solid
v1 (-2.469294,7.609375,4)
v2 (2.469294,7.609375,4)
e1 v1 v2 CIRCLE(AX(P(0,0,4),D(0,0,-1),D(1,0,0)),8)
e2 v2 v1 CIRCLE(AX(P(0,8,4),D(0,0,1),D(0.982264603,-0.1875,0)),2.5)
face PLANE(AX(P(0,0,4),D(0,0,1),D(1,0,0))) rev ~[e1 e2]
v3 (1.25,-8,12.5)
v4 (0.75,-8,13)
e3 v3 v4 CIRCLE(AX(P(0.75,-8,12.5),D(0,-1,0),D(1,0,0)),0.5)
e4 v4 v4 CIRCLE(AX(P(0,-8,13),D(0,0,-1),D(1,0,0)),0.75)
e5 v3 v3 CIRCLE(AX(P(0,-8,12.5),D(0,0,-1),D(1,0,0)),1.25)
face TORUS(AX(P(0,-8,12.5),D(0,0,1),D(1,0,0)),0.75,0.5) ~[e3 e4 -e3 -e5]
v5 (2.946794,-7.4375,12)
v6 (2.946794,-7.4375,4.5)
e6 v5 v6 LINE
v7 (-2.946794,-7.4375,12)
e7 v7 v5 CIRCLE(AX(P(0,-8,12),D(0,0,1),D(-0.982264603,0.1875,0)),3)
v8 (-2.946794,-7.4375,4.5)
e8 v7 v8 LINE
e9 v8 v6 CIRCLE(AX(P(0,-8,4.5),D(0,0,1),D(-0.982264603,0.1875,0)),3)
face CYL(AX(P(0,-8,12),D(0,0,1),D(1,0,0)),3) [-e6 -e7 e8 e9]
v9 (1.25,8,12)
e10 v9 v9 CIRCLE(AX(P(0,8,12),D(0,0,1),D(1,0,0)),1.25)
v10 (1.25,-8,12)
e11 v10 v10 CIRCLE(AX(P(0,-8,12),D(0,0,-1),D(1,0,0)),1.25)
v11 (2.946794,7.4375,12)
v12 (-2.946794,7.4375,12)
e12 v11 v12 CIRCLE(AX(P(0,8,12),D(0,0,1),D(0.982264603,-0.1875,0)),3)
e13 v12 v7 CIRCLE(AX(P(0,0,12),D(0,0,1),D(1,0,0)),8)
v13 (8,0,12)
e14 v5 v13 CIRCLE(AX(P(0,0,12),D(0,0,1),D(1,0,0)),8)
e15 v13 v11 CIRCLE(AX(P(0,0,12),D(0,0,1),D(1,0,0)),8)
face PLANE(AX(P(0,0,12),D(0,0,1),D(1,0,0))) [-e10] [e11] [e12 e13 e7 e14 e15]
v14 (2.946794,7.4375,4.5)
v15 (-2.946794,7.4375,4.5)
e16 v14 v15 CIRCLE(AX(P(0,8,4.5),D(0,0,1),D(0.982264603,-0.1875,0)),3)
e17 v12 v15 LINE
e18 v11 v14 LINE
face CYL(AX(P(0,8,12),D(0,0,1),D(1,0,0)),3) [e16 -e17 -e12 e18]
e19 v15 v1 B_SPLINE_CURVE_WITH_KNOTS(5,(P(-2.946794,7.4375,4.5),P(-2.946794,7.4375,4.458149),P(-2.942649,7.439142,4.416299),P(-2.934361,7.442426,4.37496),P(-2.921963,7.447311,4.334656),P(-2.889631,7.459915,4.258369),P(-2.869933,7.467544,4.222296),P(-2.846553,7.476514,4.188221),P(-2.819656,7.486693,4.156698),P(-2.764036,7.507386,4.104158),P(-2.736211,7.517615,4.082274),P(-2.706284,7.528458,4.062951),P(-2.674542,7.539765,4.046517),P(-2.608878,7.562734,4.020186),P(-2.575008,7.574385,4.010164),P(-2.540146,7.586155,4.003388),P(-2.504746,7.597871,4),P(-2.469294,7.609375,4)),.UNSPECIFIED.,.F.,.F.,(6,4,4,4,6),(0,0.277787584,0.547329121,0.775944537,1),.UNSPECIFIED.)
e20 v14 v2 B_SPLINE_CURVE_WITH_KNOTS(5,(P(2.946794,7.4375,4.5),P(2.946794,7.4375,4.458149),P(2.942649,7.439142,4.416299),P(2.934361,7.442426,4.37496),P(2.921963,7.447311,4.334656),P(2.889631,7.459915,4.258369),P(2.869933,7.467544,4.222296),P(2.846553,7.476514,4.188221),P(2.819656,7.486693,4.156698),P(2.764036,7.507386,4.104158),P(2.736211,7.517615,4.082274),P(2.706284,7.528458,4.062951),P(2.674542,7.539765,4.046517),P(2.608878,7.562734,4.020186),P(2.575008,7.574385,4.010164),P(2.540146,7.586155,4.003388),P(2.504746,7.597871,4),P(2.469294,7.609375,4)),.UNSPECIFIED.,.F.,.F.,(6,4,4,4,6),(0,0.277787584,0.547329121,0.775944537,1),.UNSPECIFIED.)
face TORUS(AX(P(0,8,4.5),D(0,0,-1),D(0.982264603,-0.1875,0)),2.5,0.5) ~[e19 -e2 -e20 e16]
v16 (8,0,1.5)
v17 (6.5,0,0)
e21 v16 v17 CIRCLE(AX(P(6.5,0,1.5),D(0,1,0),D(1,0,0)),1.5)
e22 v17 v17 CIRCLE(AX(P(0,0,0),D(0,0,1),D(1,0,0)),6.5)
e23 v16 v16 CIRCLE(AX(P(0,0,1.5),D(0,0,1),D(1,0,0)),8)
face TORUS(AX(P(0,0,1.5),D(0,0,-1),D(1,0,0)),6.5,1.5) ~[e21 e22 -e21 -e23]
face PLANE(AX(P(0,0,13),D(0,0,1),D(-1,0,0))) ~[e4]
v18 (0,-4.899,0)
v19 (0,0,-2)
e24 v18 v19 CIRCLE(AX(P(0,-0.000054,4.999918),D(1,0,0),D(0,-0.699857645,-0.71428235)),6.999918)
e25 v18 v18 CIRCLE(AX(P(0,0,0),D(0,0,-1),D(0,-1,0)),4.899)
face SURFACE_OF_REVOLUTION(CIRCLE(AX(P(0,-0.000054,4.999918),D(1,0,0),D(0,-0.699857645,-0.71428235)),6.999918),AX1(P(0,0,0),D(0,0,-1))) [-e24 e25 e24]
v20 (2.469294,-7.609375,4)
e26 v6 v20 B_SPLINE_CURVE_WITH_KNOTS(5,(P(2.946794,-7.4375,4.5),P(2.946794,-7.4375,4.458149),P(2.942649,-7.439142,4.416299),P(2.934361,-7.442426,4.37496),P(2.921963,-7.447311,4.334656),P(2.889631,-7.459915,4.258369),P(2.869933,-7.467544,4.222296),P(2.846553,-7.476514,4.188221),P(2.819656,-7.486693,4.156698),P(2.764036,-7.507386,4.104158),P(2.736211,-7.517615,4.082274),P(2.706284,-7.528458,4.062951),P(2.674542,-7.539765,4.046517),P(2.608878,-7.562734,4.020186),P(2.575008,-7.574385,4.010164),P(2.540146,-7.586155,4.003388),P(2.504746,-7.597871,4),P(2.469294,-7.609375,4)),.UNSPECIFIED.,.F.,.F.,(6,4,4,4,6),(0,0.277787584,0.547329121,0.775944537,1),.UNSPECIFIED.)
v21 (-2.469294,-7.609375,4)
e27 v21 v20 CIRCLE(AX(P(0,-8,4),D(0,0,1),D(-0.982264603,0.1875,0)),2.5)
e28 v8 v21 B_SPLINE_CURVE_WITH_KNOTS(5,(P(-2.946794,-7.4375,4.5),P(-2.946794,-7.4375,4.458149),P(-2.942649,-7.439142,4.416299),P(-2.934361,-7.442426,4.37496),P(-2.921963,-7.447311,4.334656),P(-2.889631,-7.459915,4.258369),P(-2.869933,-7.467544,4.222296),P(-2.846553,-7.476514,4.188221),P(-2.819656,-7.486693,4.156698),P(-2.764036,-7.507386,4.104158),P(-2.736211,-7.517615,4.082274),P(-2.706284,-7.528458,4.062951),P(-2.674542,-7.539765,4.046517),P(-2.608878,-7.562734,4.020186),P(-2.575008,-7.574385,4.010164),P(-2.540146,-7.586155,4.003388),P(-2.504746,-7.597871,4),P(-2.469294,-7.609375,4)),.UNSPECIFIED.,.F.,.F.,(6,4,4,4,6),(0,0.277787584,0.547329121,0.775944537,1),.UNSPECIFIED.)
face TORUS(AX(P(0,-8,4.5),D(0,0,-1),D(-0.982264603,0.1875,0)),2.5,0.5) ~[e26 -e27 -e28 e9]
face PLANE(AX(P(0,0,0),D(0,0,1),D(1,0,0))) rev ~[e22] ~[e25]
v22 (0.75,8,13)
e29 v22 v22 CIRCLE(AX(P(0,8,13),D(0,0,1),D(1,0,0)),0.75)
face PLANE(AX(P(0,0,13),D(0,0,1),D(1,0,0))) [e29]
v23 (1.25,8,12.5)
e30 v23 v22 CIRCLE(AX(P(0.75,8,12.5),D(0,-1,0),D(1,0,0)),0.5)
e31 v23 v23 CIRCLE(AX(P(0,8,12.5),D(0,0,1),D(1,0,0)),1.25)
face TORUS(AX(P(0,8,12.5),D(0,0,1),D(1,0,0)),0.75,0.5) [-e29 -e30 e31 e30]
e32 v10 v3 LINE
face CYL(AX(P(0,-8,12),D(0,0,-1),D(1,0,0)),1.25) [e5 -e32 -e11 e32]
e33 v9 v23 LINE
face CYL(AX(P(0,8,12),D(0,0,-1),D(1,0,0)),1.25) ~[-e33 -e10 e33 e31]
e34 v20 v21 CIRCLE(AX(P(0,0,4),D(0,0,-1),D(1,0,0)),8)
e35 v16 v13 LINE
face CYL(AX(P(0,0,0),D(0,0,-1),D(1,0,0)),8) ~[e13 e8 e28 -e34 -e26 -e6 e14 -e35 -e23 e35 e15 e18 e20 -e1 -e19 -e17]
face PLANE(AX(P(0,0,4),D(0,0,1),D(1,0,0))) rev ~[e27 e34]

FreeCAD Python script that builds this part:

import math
import FreeCAD as App
import Part
import Sketcher
from FreeCAD import Vector


def edges_at(feature, points):
    """Names of the edges that pass closest to the given points."""
    edges = feature.Shape.Edges
    near = lambda p: min(range(len(edges)), key=lambda i: edges[i].distToShape(Part.Vertex(*p))[0])
    return sorted({f"Edge{near(p) + 1}" for p in points})

doc = App.newDocument("Part")
params = doc.addObject("Spreadsheet::Sheet", "Params")
for row, (alias, value) in enumerate([
    ("sketch1_diameter", "16 mm"),
    ("pad1_length", "12 mm"),
    ("sketch2_diameter", "6 mm"),
    ("pad2_length", "8 mm"),
    ("sketch3_height", "2 mm"),
    ("sketch3_radius", "7 mm"),
    ("revolution_angle", "360 deg"),
    ("fillet_radius", "0.5 mm"),
    ("fillet2_radius", "1.5 mm"),
    ("sketch4_diameter", "2.5 mm"),
    ("pad3_length", "1 mm"),
    ("fillet3_radius", "0.5 mm"),
], start=1):
    params.set(f"A{row}", alias)
    params.set(f"B{row}", "=" + value)
    params.setAlias(f"B{row}", alias)

body = doc.addObject("PartDesign::Body", "Body")

# Sketch on XY plane
sketch1 = body.newObject("Sketcher::SketchObject", "Sketch")
sketch1.AttachmentSupport = (doc.getObject("XY_Plane"), [""])
sketch1.MapMode = "FlatFace"
sketch1.addGeometry(Part.Circle(Vector(0, 0, 0), Vector(0, 0, 1), 8), False)
sketch1.addConstraint(Sketcher.Constraint("Coincident", 0, 3, -1, 1))
sketch1.addConstraint(Sketcher.Constraint("Diameter", 0, 16.0))
sketch1.setExpression("Constraints[1]", "Params.sketch1_diameter")
pad1 = body.newObject("PartDesign::Pad", "Pad")
pad1.Profile = sketch1
pad1.setExpression("Length", "Params.pad1_length")

# Sketch on XY plane
sketch2 = body.newObject("Sketcher::SketchObject", "Sketch001")
sketch2.AttachmentSupport = (doc.getObject("XY_Plane"), [""])
sketch2.MapMode = "FlatFace"
sketch2.AttachmentOffset = App.Placement(Vector(0, 0, 12), App.Rotation())
sketch2.addGeometry(Part.Circle(Vector(0, 8, 0), Vector(0, 0, 1), 3), False)
sketch2.addGeometry(Part.Circle(Vector(0, -8, 0), Vector(0, 0, 1), 3), False)
sketch2.addConstraint(Sketcher.Constraint("Equal", 0, 1))
sketch2.addConstraint(Sketcher.Constraint("Symmetric", 0, 3, 1, 3, -1, 1))
sketch2.addConstraint(Sketcher.Constraint("PointOnObject", 0, 3, -2))
sketch2.addConstraint(Sketcher.Constraint("Diameter", 0, 6.0))
sketch2.addConstraint(Sketcher.Constraint("DistanceY", -1, 1, 0, 3, 8.0))
sketch2.setExpression("Constraints[3]", "Params.sketch2_diameter")
pad2 = body.newObject("PartDesign::Pad", "Pad001")
pad2.Profile = sketch2
pad2.setExpression("Length", "Params.pad2_length")
pad2.Reversed = True

# Sketch on YZ plane
sketch3 = body.newObject("Sketcher::SketchObject", "Sketch002")
sketch3.AttachmentSupport = (doc.getObject("YZ_Plane"), [""])
sketch3.MapMode = "FlatFace"
sketch3.addGeometry(Part.LineSegment(Vector(0, -2, 0), Vector(0, 0, 0)), False)
sketch3.addGeometry(Part.LineSegment(Vector(0, 0, 0), Vector(-4.9, 0, 0)), False)
sketch3.addGeometry(Part.ArcOfCircle(Part.Circle(Vector(0, 5, 0), Vector(0, 0, 1), 7), math.radians(-134), math.radians(-90)), False)
sketch3.addConstraint(Sketcher.Constraint("Coincident", 0, 2, 1, 1))
sketch3.addConstraint(Sketcher.Constraint("Coincident", 1, 2, 2, 1))
sketch3.addConstraint(Sketcher.Constraint("Coincident", 2, 2, 0, 1))
sketch3.addConstraint(Sketcher.Constraint("Vertical", 0))
sketch3.addConstraint(Sketcher.Constraint("Horizontal", 1))
sketch3.addConstraint(Sketcher.Constraint("Coincident", 0, 2, -1, 1))
sketch3.addConstraint(Sketcher.Constraint("PointOnObject", 2, 3, -2))
sketch3.addConstraint(Sketcher.Constraint("DistanceY", 0, 1, 0, 2, 2.0))
sketch3.addConstraint(Sketcher.Constraint("Radius", 2, 7.0))
sketch3.setExpression("Constraints[7]", "Params.sketch3_height")
sketch3.setExpression("Constraints[8]", "Params.sketch3_radius")
revolution = body.newObject("PartDesign::Revolution", "Revolution")
revolution.Profile = sketch3
revolution.ReferenceAxis = (sketch3, ["V_Axis"])
revolution.setExpression("Angle", "Params.revolution_angle")
doc.recompute()

fillet = body.newObject("PartDesign::Fillet", "Fillet")
fillet.Base = (revolution, edges_at(revolution, [(0, 11, 4), (0, -11, 4)]))
fillet.setExpression("Radius", "Params.fillet_radius")
doc.recompute()

fillet2 = body.newObject("PartDesign::Fillet", "Fillet001")
fillet2.Base = (fillet, edges_at(fillet, [(-8, 0, 0)]))
fillet2.setExpression("Radius", "Params.fillet2_radius")

# Sketch on XY plane
sketch4 = body.newObject("Sketcher::SketchObject", "Sketch003")
sketch4.AttachmentSupport = (doc.getObject("XY_Plane"), [""])
sketch4.MapMode = "FlatFace"
sketch4.AttachmentOffset = App.Placement(Vector(0, 0, 12), App.Rotation())
sketch4.addGeometry(Part.Circle(Vector(0, 8, 0), Vector(0, 0, 1), 1.2), False)
sketch4.addConstraint(Sketcher.Constraint("PointOnObject", 0, 3, -2))
sketch4.addConstraint(Sketcher.Constraint("Diameter", 0, 2.5))
sketch4.addConstraint(Sketcher.Constraint("DistanceY", -1, 1, 0, 3, 8.0))
sketch4.setExpression("Constraints[1]", "Params.sketch4_diameter")
pad3 = body.newObject("PartDesign::Pad", "Pad002")
pad3.Profile = sketch4
pad3.setExpression("Length", "Params.pad3_length")
doc.recompute()

fillet3 = body.newObject("PartDesign::Fillet", "Fillet002")
fillet3.Base = (pad3, edges_at(pad3, [(-1.25, 8, 13)]))
fillet3.setExpression("Radius", "Params.fillet3_radius")
doc.recompute()

mirrored = body.newObject("PartDesign::Mirrored", "Mirrored")
mirrored.Originals = [pad3, fillet3]
mirrored.MirrorPlane = (doc.getObject("XZ_Plane"), [""])
body.Tip = mirrored

doc.recompute()
